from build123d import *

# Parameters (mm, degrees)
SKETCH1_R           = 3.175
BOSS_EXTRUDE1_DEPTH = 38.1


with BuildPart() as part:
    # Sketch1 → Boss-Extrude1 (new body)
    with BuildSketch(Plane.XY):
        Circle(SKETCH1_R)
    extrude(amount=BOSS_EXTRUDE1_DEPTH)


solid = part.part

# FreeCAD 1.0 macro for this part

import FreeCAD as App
import Part
import Sketcher

V = App.Vector
Q = App.Units.Quantity

doc = App.newDocument("Part")
body = doc.addObject("PartDesign::Body", "Body")

sketch1 = body.newObject("Sketcher::SketchObject", "Sketch")
sketch1.AttachmentSupport = (doc.getObject("XY_Plane"), [""])
sketch1.MapMode = "FlatFace"
sketch1.addGeometry(Part.Circle(V(0, 0, 0), V(0, 0, 1), 3.2), False)
sketch1.addConstraint([
    Sketcher.Constraint("Coincident", 0, 3, -1, 1),
    Sketcher.Constraint("Diameter", 0, Q("0.25 in")),
])
pad1 = body.newObject("PartDesign::Pad", "Pad")
pad1.Profile = sketch1
pad1.Length = Q("1.5 in")

doc.recompute()
